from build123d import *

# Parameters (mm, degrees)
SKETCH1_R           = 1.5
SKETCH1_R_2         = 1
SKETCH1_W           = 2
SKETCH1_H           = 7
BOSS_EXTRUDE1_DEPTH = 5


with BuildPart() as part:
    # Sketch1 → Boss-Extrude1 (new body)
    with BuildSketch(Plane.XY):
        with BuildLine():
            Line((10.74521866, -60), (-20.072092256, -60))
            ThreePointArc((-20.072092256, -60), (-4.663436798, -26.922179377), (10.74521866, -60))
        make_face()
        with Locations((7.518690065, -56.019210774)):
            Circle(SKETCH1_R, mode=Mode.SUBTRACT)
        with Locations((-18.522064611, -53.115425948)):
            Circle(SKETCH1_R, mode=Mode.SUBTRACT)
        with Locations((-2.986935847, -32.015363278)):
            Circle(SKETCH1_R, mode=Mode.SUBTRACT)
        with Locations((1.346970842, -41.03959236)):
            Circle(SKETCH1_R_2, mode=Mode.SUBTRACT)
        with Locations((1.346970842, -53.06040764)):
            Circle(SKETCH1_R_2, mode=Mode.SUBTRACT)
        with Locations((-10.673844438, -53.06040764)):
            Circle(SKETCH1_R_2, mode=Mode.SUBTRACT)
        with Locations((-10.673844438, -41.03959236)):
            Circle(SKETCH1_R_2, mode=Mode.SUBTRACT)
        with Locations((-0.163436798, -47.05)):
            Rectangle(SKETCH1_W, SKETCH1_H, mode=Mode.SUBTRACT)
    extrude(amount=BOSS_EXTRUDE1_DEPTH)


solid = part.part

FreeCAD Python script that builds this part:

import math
import FreeCAD as App
import Part
import Sketcher
from FreeCAD import Vector

doc = App.newDocument("Part")
body = doc.addObject("PartDesign::Body", "Body")

# Sketch on XY plane
sketch1 = body.newObject("Sketcher::SketchObject", "Sketch")
sketch1.AttachmentSupport = (doc.getObject("XY_Plane"), [""])
sketch1.MapMode = "FlatFace"
sketch1.addGeometry([
    Part.LineSegment(Vector(-20.072092, -60, 0), Vector(10.745219, -60, 0)),  # 0
    Part.ArcOfCircle(Part.Circle(Vector(-4.663437, -47.05, 0), Vector(0, 0, 1), 20.127821), math.radians(-40.044927), math.radians(220.044927)),  # 1
    Part.Circle(Vector(7.51869, -56.019211, 0), Vector(0, 0, 1), 1.5),  # 2
    Part.Circle(Vector(1.346971, -53.060408, 0), Vector(0, 0, 1), 1),  # 3
    Part.LineSegment(Vector(-1.163437, -50.55, 0), Vector(-1.163437, -43.55, 0)),  # 4
    Part.LineSegment(Vector(-1.163437, -43.55, 0), Vector(0.836563, -43.55, 0)),  # 5
    Part.LineSegment(Vector(0.836563, -43.55, 0), Vector(0.836563, -50.55, 0)),  # 6
    Part.LineSegment(Vector(0.836563, -50.55, 0), Vector(-1.163437, -50.55, 0)),  # 7
    Part.Circle(Vector(-10.673844, -53.060408, 0), Vector(0, 0, 1), 1),  # 8
    Part.Circle(Vector(-18.522065, -53.115426, 0), Vector(0, 0, 1), 1.5),  # 9
    Part.Circle(Vector(1.346971, -41.039592, 0), Vector(0, 0, 1), 1),  # 10
    Part.Circle(Vector(-2.986936, -32.015363, 0), Vector(0, 0, 1), 1.5),  # 11
    Part.Circle(Vector(-10.673844, -41.039592, 0), Vector(0, 0, 1), 1),  # 12
], False)
sketch1.addConstraint([
    Sketcher.Constraint("Coincident", 0, 1, 1, 2),
    Sketcher.Constraint("Coincident", 1, 1, 0, 2),
    Sketcher.Constraint("Coincident", 4, 2, 5, 1),
    Sketcher.Constraint("Coincident", 5, 2, 6, 1),
    Sketcher.Constraint("Coincident", 6, 2, 7, 1),
    Sketcher.Constraint("Coincident", 7, 2, 4, 1),
    Sketcher.Constraint("Horizontal", 0),
    Sketcher.Constraint("Vertical", 4),
    Sketcher.Constraint("Horizontal", 5),
    Sketcher.Constraint("Vertical", 6),
    Sketcher.Constraint("Horizontal", 7),
    Sketcher.Constraint("Equal", 3, 8),
    Sketcher.Constraint("Equal", 2, 9),
    Sketcher.Constraint("Equal", 8, 10),
    Sketcher.Constraint("Equal", 9, 11),
    Sketcher.Constraint("Equal", 10, 12),
    Sketcher.Constraint("Horizontal", 3, 3, 8, 3),
    Sketcher.Constraint("Horizontal", 10, 3, 12, 3),
    Sketcher.Constraint("Vertical", 3, 3, 10, 3),
    Sketcher.Constraint("Vertical", 8, 3, 12, 3),
    Sketcher.Constraint("Diameter", 2, 3.0),
    Sketcher.Constraint("Diameter", 3, 2.0),
    Sketcher.Constraint("DistanceX", 5, 1, 5, 2, 2.0),
    Sketcher.Constraint("DistanceY", 4, 1, 4, 2, 7.0),
    Sketcher.Constraint("DistanceY", 0, 1, -1, 1, 60.0),
    Sketcher.Constraint("DistanceX", 1, 3, 4, 2, 3.5),
    Sketcher.Constraint("DistanceY", 1, 3, 4, 2, 3.5),
    Sketcher.Constraint("DistanceY", 1, 3, -1, 1, 47.05),
    Sketcher.Constraint("Radius", 1, 20.127821),
    Sketcher.Constraint("DistanceX", 1, 3, 11, 3, 1.676501),
    Sketcher.Constraint("DistanceX", -1, 1, 2, 3, 7.51869),
    Sketcher.Constraint("DistanceY", 2, 3, -1, 1, 56.019211),
    Sketcher.Constraint("DistanceX", -1, 1, 3, 3, 1.346971),
    Sketcher.Constraint("DistanceX", -1, 1, 1, 1, 10.745219),
    Sketcher.Constraint("DistanceX", 9, 3, 8, 3, 7.84822),
    Sketcher.Constraint("DistanceY", 9, 3, 8, 3, 0.055018),
    Sketcher.Constraint("DistanceY", 2, 3, 10, 3, 14.979618),
    Sketcher.Constraint("DistanceY", 10, 3, 11, 3, 9.024229),
    Sketcher.Constraint("DistanceX", 8, 3, 11, 3, 7.686909),
    Sketcher.Constraint("DistanceY", 3, 3, -1, 1, 53.060408),
])
pad1 = body.newObject("PartDesign::Pad", "Pad")
pad1.Profile = sketch1
pad1.Length = 5

doc.recompute()
